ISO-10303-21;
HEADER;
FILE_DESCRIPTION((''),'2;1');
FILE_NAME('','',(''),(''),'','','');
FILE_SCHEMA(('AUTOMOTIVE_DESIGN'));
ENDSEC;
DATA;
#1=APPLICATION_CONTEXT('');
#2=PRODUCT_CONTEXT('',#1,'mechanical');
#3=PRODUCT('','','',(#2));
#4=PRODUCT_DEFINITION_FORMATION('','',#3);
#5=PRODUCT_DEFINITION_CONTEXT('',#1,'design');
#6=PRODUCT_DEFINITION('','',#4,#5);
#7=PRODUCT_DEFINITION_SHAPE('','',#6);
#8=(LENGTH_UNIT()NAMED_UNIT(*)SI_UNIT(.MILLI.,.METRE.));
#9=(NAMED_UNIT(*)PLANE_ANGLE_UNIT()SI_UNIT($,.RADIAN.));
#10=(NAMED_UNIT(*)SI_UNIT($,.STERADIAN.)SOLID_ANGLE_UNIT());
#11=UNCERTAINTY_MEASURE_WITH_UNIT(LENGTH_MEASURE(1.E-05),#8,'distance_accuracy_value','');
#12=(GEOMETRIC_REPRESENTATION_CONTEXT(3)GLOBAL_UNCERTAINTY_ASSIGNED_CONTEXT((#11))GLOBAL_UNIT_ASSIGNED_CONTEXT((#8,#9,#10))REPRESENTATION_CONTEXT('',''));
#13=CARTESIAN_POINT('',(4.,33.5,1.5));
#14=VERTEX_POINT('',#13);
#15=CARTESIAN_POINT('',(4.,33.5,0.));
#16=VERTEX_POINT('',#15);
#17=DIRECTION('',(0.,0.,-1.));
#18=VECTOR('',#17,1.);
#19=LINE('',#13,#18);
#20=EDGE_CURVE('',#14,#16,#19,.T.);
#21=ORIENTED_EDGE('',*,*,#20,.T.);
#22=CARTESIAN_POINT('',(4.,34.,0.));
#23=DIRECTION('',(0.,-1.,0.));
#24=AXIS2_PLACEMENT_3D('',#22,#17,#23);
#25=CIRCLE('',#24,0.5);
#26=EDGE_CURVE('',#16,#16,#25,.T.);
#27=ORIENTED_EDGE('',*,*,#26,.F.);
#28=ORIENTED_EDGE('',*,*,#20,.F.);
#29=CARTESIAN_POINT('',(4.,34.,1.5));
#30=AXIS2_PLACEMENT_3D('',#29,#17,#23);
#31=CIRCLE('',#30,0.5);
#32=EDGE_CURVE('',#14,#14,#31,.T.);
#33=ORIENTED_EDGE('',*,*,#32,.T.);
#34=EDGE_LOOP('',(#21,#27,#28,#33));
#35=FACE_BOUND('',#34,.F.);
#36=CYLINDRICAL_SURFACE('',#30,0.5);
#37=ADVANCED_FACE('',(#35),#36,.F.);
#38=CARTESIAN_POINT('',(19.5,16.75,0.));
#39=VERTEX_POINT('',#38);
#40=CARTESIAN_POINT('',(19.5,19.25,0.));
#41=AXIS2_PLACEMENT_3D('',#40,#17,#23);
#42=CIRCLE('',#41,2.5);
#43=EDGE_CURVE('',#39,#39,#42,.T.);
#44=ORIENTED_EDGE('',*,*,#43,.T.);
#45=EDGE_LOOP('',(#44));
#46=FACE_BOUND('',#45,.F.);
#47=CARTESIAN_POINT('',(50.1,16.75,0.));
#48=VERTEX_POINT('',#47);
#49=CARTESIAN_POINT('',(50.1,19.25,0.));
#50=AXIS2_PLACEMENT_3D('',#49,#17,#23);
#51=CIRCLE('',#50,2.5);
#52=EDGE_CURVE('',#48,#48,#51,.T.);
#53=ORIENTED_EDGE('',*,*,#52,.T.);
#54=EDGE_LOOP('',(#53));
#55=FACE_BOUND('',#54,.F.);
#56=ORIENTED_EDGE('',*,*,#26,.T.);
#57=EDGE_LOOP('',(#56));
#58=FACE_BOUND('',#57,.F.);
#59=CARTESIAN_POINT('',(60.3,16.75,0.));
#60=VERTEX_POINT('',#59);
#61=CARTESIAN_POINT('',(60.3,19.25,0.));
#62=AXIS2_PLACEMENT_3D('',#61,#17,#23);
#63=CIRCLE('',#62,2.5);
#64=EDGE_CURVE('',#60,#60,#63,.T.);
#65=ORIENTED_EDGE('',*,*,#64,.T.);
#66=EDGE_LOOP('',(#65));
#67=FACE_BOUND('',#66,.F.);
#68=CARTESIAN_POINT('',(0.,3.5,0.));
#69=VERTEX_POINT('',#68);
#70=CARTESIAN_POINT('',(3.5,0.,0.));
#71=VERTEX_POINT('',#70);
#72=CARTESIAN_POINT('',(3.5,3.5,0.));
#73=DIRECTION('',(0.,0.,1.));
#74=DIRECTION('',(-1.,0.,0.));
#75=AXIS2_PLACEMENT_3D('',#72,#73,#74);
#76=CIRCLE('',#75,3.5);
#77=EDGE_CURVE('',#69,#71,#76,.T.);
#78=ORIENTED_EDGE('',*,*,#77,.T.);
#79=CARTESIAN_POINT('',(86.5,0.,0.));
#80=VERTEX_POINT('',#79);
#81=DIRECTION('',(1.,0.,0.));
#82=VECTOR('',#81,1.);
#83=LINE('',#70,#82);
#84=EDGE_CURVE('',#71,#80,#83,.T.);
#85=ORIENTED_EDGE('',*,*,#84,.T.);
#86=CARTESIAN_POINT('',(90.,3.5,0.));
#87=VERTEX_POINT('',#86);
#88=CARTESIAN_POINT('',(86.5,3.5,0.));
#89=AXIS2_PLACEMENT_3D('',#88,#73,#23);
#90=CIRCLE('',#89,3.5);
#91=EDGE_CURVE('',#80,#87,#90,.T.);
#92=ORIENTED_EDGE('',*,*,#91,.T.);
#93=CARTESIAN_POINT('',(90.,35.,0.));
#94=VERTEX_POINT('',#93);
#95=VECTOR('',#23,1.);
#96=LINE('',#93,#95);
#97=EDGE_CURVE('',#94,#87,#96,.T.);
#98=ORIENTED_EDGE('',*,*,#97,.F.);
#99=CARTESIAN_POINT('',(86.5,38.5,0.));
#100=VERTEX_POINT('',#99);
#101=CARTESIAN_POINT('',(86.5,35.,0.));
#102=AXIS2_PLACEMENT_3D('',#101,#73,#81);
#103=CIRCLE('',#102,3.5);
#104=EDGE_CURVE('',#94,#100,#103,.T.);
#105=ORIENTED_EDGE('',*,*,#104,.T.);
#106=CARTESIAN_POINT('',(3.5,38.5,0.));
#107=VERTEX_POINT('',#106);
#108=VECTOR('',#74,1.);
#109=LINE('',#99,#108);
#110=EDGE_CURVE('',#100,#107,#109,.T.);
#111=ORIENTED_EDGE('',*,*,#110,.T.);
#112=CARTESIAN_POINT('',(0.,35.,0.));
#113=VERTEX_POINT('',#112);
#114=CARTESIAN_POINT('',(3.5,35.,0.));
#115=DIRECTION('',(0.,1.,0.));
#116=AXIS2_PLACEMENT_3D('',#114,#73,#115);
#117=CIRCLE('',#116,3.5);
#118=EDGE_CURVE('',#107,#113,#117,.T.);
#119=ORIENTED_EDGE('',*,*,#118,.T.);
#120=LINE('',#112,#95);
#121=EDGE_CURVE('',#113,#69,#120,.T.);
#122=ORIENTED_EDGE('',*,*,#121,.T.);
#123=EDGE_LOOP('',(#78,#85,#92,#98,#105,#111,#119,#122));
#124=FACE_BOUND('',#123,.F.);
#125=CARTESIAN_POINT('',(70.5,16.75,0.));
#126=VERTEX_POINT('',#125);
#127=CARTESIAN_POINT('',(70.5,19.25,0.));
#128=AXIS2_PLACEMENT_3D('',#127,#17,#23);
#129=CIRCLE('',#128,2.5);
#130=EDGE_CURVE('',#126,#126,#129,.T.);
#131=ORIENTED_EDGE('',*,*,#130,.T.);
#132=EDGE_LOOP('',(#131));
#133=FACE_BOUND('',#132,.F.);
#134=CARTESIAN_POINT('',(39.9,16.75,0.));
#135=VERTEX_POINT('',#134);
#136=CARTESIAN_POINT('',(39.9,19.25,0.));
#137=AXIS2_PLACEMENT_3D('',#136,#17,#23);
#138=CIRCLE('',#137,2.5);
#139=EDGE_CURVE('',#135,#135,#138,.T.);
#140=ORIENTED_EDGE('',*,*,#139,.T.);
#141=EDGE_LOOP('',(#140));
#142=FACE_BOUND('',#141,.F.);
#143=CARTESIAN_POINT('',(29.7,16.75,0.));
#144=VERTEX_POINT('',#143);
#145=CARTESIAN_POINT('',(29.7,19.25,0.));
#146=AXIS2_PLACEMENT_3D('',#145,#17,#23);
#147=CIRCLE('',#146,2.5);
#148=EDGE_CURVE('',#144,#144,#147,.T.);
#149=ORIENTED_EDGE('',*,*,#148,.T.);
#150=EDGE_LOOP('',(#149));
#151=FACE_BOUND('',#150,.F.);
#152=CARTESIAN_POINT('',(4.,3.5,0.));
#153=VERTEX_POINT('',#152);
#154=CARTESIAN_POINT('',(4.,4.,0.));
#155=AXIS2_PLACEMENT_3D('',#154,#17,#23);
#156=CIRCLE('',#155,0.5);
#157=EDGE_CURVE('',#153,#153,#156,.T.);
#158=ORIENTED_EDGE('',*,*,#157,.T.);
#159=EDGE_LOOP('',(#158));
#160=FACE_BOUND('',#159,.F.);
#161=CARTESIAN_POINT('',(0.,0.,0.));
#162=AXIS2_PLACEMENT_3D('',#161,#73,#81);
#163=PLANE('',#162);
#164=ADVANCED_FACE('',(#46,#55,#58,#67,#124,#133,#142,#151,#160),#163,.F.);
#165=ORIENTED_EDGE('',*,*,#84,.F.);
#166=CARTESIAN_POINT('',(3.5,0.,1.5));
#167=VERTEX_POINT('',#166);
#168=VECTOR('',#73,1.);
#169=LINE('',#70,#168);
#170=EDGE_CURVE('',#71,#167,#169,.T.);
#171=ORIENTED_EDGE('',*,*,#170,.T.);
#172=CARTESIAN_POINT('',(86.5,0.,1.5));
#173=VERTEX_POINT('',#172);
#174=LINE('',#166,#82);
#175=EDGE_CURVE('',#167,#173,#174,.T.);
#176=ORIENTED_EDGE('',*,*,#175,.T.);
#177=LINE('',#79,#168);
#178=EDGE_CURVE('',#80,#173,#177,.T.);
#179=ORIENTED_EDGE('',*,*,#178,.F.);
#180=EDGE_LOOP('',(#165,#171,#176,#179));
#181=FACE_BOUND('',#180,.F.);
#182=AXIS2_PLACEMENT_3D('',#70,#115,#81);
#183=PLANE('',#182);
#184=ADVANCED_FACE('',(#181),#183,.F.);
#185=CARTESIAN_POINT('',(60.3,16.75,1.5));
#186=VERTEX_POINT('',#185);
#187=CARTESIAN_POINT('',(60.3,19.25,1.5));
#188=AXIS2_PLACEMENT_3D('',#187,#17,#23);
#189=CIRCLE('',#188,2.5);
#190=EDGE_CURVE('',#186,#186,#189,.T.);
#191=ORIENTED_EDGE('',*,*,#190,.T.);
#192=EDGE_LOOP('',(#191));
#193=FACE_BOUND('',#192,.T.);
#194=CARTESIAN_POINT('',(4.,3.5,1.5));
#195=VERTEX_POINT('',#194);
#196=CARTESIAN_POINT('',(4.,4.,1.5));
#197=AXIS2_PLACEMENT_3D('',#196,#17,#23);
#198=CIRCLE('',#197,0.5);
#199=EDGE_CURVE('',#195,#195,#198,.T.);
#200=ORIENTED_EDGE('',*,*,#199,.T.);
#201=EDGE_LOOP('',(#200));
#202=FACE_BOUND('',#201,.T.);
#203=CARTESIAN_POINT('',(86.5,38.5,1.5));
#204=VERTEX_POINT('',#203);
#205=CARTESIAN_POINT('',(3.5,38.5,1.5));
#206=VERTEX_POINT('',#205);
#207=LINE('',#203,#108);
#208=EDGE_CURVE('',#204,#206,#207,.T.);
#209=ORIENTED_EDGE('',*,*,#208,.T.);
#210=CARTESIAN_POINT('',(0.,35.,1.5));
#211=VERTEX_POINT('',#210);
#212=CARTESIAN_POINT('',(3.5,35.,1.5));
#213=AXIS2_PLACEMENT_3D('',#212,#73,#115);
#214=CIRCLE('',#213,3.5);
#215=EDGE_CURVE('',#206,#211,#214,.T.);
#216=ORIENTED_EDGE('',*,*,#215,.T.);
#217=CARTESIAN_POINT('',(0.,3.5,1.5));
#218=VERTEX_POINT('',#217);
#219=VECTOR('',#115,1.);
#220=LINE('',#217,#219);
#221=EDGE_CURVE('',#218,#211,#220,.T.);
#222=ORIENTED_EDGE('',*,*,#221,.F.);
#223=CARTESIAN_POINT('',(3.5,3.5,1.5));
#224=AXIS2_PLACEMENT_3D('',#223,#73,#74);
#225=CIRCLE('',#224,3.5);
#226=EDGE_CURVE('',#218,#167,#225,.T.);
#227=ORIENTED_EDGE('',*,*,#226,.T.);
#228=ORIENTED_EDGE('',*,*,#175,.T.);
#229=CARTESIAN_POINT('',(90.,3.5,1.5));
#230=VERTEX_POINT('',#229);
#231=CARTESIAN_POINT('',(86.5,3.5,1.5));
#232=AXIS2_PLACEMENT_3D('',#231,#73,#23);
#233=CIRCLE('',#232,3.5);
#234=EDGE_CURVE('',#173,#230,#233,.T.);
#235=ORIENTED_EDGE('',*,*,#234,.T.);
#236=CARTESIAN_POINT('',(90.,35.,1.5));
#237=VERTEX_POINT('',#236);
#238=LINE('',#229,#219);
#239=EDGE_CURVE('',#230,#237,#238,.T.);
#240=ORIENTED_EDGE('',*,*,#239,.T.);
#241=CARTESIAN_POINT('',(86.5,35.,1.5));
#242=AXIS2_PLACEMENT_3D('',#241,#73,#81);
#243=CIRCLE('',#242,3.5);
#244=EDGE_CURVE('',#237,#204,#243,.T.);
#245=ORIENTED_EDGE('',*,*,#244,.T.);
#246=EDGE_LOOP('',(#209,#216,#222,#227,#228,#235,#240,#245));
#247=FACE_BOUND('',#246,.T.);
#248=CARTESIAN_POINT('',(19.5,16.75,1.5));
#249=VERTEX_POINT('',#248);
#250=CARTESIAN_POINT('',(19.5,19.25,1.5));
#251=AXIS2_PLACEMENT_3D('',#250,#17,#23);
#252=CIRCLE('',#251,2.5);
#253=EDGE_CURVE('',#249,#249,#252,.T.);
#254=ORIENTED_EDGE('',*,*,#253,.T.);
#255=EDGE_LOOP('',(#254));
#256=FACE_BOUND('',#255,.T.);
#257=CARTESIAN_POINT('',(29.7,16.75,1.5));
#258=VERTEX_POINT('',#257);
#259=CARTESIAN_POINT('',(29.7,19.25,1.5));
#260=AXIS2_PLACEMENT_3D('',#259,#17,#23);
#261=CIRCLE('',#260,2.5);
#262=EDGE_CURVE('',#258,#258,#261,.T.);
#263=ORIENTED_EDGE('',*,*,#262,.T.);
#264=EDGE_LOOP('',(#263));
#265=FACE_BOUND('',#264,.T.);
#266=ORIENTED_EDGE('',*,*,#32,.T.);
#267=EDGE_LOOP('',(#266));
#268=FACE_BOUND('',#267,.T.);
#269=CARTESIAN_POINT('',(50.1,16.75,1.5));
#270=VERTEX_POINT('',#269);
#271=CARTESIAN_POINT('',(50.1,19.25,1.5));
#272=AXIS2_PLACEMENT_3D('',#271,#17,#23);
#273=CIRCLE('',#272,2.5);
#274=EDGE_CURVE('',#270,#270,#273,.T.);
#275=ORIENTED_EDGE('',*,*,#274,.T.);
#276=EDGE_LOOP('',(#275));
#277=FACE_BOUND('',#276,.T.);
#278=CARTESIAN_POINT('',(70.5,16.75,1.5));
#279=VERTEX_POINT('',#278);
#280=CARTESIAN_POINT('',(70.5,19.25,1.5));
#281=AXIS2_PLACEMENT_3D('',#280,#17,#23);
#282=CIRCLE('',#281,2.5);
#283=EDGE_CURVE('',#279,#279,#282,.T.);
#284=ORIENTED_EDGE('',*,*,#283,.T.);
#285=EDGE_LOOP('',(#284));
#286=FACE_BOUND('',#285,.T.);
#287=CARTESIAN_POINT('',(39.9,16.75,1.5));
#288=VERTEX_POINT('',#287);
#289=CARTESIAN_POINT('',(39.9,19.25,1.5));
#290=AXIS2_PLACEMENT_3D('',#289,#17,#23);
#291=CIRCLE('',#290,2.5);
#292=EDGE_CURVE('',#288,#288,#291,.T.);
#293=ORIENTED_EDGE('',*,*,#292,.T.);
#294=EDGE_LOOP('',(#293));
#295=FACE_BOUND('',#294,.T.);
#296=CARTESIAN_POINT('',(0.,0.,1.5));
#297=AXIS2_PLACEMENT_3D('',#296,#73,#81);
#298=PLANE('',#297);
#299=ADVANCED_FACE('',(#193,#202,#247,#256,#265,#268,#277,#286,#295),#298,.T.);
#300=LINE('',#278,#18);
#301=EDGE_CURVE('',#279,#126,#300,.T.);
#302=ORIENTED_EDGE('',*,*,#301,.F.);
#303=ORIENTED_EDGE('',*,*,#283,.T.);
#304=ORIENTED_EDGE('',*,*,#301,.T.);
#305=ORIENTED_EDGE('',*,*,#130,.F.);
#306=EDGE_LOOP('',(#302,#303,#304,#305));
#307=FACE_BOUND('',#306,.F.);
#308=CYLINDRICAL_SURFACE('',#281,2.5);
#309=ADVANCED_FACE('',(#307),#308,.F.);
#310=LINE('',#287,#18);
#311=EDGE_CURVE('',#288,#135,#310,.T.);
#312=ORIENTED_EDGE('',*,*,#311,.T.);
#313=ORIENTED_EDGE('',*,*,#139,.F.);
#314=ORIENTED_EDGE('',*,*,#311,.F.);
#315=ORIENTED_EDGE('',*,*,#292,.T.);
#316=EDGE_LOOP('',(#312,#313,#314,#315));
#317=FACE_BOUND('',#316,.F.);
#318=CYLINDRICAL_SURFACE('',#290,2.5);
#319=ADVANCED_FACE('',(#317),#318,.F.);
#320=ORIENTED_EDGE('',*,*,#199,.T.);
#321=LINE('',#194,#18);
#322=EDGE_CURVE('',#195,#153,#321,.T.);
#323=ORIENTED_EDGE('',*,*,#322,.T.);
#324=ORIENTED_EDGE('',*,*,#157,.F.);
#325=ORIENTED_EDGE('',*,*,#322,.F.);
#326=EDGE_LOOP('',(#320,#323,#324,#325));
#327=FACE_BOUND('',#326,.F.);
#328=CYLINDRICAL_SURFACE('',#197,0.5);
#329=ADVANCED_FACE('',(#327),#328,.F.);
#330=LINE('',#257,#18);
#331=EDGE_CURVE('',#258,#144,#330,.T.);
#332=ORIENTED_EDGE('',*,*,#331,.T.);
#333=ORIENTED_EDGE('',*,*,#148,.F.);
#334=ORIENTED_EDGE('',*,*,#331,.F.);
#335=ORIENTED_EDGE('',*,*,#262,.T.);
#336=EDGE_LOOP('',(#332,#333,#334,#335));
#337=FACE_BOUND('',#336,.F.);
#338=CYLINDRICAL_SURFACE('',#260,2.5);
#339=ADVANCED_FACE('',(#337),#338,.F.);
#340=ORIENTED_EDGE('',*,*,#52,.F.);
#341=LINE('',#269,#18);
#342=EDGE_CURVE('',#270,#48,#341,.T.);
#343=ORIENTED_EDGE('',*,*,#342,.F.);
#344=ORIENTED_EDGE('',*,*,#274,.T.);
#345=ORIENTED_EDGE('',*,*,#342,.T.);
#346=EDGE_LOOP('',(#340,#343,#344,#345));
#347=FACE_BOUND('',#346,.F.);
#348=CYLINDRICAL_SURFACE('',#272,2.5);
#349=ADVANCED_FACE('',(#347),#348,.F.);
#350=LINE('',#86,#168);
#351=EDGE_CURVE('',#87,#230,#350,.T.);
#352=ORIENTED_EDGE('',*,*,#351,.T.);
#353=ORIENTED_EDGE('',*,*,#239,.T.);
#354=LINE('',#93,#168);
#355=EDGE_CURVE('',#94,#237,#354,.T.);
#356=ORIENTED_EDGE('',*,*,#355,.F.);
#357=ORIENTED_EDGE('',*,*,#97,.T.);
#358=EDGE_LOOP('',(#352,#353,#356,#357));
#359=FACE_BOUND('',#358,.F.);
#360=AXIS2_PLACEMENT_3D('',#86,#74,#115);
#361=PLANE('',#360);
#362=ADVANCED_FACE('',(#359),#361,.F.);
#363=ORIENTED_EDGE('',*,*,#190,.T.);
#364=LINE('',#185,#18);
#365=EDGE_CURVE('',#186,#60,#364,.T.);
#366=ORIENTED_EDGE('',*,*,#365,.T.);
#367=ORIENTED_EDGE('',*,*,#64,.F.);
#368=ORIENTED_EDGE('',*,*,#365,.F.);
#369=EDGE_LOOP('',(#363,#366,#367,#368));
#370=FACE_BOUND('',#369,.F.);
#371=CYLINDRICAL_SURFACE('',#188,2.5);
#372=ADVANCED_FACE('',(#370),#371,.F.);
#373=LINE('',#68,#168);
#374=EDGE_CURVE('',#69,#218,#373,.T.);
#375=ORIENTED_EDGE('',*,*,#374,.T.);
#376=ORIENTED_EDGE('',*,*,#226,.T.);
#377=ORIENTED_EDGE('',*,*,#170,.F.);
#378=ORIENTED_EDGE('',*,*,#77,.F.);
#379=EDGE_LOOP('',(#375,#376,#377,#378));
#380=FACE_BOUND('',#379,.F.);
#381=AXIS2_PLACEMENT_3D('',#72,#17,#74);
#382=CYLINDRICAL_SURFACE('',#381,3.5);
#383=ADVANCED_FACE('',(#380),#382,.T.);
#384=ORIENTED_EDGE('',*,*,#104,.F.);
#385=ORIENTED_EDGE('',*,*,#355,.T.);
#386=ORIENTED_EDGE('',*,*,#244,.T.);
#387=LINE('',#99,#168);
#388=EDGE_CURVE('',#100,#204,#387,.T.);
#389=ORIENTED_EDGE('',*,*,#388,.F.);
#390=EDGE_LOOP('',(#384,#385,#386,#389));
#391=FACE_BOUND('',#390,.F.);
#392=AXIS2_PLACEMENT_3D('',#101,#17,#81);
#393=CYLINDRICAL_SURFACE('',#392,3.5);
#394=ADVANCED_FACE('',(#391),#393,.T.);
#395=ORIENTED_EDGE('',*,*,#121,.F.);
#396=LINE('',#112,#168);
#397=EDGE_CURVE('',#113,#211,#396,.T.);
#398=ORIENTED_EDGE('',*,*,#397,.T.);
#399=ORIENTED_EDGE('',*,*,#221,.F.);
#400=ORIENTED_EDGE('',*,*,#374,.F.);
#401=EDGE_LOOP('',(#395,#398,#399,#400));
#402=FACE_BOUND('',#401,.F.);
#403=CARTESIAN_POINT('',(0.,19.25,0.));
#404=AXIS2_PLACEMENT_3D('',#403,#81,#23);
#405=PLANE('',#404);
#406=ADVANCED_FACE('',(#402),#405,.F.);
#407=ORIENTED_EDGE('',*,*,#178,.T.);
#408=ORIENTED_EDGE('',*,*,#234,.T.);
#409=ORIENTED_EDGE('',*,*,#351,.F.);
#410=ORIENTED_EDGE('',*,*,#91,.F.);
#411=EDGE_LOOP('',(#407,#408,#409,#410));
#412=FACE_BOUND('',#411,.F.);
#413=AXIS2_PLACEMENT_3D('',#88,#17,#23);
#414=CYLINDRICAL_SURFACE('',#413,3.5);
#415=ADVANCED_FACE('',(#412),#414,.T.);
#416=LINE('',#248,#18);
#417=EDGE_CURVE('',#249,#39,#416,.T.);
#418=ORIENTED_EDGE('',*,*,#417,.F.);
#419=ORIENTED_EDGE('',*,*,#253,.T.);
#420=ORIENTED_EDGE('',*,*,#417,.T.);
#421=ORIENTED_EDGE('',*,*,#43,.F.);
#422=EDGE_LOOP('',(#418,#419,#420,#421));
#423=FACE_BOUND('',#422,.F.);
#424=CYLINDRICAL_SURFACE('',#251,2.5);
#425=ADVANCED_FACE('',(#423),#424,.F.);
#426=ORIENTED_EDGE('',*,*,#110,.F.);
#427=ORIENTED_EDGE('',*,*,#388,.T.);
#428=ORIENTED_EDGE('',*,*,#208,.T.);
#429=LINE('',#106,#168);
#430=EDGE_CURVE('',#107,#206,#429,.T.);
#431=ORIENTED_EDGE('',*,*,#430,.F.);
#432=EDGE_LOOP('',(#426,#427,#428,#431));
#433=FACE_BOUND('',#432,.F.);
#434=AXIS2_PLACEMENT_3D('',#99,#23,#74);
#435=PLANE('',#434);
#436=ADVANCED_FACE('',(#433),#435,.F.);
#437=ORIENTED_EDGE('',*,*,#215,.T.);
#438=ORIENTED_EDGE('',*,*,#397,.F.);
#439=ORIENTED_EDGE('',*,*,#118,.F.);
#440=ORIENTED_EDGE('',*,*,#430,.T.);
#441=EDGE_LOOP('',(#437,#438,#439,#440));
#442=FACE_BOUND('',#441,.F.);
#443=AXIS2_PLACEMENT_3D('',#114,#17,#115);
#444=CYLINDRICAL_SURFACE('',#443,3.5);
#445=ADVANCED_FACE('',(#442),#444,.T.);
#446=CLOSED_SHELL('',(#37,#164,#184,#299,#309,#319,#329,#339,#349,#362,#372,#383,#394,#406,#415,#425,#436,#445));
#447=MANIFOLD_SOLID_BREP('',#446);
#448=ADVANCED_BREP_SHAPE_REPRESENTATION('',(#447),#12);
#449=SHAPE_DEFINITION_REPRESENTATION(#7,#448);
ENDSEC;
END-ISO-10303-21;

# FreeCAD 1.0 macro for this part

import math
import FreeCAD as App
import Part
import Sketcher

V = App.Vector

doc = App.newDocument("Part")
params = doc.addObject("Spreadsheet::Sheet", "Params")
for row, (alias, value) in enumerate([
    ("sketch1_radius", "3.5 mm"),
    ("pad1_length", "1.5 mm"),
    ("sketch2_diameter", "5 mm"),
    ("hole_diameter", "5 mm"),
    ("hole_depth", "1.5 mm"),
    ("sketch3_diameter", "1 mm"),
    ("hole2_diameter", "1 mm"),
    ("hole2_depth", "1.5 mm"),
], start=1):
    params.set(f"A{row}", alias)
    params.set(f"B{row}", "=" + value)
    params.setAlias(f"B{row}", alias)

body = doc.addObject("PartDesign::Body", "Body")

# Sketch on XY plane
sketch1 = body.newObject("Sketcher::SketchObject", "Sketch")
sketch1.AttachmentSupport = (doc.getObject("XY_Plane"), [""])
sketch1.MapMode = "FlatFace"
sketch1.addGeometry([
    Part.ArcOfCircle(Part.Circle(V(3.5, 3.5, 0), V(0, 0, 1), 3.5), math.radians(180), math.radians(270)),  # 0
    Part.LineSegment(V(3.5, 0, 0), V(86.5, 0, 0)),  # 1
    Part.ArcOfCircle(Part.Circle(V(86.5, 3.5, 0), V(0, 0, 1), 3.5), math.radians(-90), math.radians(0)),  # 2
    Part.LineSegment(V(90, 3.5, 0), V(90, 35, 0)),  # 3
    Part.ArcOfCircle(Part.Circle(V(86.5, 35, 0), V(0, 0, 1), 3.5), math.radians(0), math.radians(90)),  # 4
    Part.LineSegment(V(86.5, 38.5, 0), V(3.5, 38.5, 0)),  # 5
    Part.ArcOfCircle(Part.Circle(V(3.5, 35, 0), V(0, 0, 1), 3.5), math.radians(90), math.radians(180)),  # 6
    Part.LineSegment(V(0, 35, 0), V(0, 3.5, 0)),  # 7
], False)
sketch1.addConstraint([
    Sketcher.Constraint("Tangent", 0, 2, 1, 1),
    Sketcher.Constraint("Tangent", 1, 2, 2, 1),
    Sketcher.Constraint("Tangent", 2, 2, 3, 1),
    Sketcher.Constraint("Tangent", 3, 2, 4, 1),
    Sketcher.Constraint("Tangent", 4, 2, 5, 1),
    Sketcher.Constraint("Tangent", 5, 2, 6, 1),
    Sketcher.Constraint("Tangent", 6, 2, 7, 1),
    Sketcher.Constraint("Tangent", 7, 2, 0, 1),
    Sketcher.Constraint("Horizontal", 1),
    Sketcher.Constraint("Vertical", 3),
    Sketcher.Constraint("Horizontal", 5),
    Sketcher.Constraint("Vertical", 7),
    Sketcher.Constraint("Equal", 0, 2),
    Sketcher.Constraint("Equal", 2, 4),
    Sketcher.Constraint("Equal", 4, 6),
    Sketcher.Constraint("PointOnObject", 0, 2, -1),
    Sketcher.Constraint("PointOnObject", 6, 2, -2),
    Sketcher.Constraint("Radius", 0, 3.5),
    Sketcher.Constraint("DistanceX", -1, 1, 2, 2, 90.0),
    Sketcher.Constraint("DistanceY", -1, 1, 4, 2, 38.5),
])
sketch1.setExpression("Constraints[17]", "Params.sketch1_radius")
pad1 = body.newObject("PartDesign::Pad", "Pad")
pad1.Profile = sketch1
pad1.setExpression("Length", "Params.pad1_length")

# Sketch on XY plane
sketch2 = body.newObject("Sketcher::SketchObject", "Sketch001")
sketch2.AttachmentSupport = (doc.getObject("XY_Plane"), [""])
sketch2.MapMode = "FlatFace"
sketch2.AttachmentOffset = App.Placement(V(0, 0, 1.5), App.Rotation())
sketch2.addGeometry([
    Part.Circle(V(19.5, 19.2, 0), V(0, 0, 1), 2.5),  # 0
    Part.Circle(V(29.7, 19.2, 0), V(0, 0, 1), 2.5),  # 1
    Part.Circle(V(39.9, 19.2, 0), V(0, 0, 1), 2.5),  # 2
    Part.Circle(V(50.1, 19.2, 0), V(0, 0, 1), 2.5),  # 3
    Part.Circle(V(60.3, 19.2, 0), V(0, 0, 1), 2.5),  # 4
    Part.Circle(V(70.5, 19.2, 0), V(0, 0, 1), 2.5),  # 5
], False)
sketch2.addConstraint([
    Sketcher.Constraint("Equal", 0, 1),
    Sketcher.Constraint("Equal", 1, 2),
    Sketcher.Constraint("Equal", 2, 3),
    Sketcher.Constraint("Equal", 3, 4),
    Sketcher.Constraint("Equal", 4, 5),
    Sketcher.Constraint("Horizontal", 0, 3, 1, 3),
    Sketcher.Constraint("Horizontal", 1, 3, 2, 3),
    Sketcher.Constraint("Horizontal", 2, 3, 3, 3),
    Sketcher.Constraint("Horizontal", 3, 3, 4, 3),
    Sketcher.Constraint("Horizontal", 4, 3, 5, 3),
    Sketcher.Constraint("Diameter", 0, 5.0),
    Sketcher.Constraint("DistanceX", 0, 3, 5, 3, 51.0),
    Sketcher.Constraint("DistanceX", -1, 1, 0, 3, 19.5),
    Sketcher.Constraint("DistanceX", -1, 1, 1, 3, 29.7),
    Sketcher.Constraint("DistanceX", -1, 1, 2, 3, 39.9),
    Sketcher.Constraint("DistanceX", -1, 1, 3, 3, 50.1),
    Sketcher.Constraint("DistanceX", -1, 1, 4, 3, 60.3),
    Sketcher.Constraint("DistanceY", -1, 1, 0, 3, 19.25),
])
sketch2.setExpression("Constraints[10]", "Params.sketch2_diameter")
doc.recompute()
hole = body.newObject("PartDesign::Hole", "Hole")
hole.Profile = sketch2
hole.ThreadType = "None"
hole.setExpression("Diameter", "Params.hole_diameter")
hole.DepthType = "Dimension"
hole.setExpression("Depth", "Params.hole_depth")
hole.DrillPoint = "Flat"

# Sketch on XY plane
sketch3 = body.newObject("Sketcher::SketchObject", "Sketch002")
sketch3.AttachmentSupport = (doc.getObject("XY_Plane"), [""])
sketch3.MapMode = "FlatFace"
sketch3.AttachmentOffset = App.Placement(V(0, 0, 1.5), App.Rotation())
sketch3.addGeometry([
    Part.Circle(V(4, 4, 0), V(0, 0, 1), 0.5),
    Part.Circle(V(4, 34, 0), V(0, 0, 1), 0.5),
], False)
sketch3.addConstraint([
    Sketcher.Constraint("Equal", 0, 1),
    Sketcher.Constraint("Vertical", 0, 3, 1, 3),
    Sketcher.Constraint("Diameter", 0, 1.0),
    Sketcher.Constraint("DistanceX", -1, 1, 0, 3, 4.0),
    Sketcher.Constraint("DistanceY", -1, 1, 0, 3, 4.0),
    Sketcher.Constraint("DistanceY", -1, 1, 1, 3, 34.0),
])
sketch3.setExpression("Constraints[2]", "Params.sketch3_diameter")
doc.recompute()
hole2 = body.newObject("PartDesign::Hole", "Hole001")
hole2.Profile = sketch3
hole2.ThreadType = "None"
hole2.setExpression("Diameter", "Params.hole2_diameter")
hole2.DepthType = "Dimension"
hole2.setExpression("Depth", "Params.hole2_depth")
hole2.DrillPoint = "Flat"

doc.recompute()
